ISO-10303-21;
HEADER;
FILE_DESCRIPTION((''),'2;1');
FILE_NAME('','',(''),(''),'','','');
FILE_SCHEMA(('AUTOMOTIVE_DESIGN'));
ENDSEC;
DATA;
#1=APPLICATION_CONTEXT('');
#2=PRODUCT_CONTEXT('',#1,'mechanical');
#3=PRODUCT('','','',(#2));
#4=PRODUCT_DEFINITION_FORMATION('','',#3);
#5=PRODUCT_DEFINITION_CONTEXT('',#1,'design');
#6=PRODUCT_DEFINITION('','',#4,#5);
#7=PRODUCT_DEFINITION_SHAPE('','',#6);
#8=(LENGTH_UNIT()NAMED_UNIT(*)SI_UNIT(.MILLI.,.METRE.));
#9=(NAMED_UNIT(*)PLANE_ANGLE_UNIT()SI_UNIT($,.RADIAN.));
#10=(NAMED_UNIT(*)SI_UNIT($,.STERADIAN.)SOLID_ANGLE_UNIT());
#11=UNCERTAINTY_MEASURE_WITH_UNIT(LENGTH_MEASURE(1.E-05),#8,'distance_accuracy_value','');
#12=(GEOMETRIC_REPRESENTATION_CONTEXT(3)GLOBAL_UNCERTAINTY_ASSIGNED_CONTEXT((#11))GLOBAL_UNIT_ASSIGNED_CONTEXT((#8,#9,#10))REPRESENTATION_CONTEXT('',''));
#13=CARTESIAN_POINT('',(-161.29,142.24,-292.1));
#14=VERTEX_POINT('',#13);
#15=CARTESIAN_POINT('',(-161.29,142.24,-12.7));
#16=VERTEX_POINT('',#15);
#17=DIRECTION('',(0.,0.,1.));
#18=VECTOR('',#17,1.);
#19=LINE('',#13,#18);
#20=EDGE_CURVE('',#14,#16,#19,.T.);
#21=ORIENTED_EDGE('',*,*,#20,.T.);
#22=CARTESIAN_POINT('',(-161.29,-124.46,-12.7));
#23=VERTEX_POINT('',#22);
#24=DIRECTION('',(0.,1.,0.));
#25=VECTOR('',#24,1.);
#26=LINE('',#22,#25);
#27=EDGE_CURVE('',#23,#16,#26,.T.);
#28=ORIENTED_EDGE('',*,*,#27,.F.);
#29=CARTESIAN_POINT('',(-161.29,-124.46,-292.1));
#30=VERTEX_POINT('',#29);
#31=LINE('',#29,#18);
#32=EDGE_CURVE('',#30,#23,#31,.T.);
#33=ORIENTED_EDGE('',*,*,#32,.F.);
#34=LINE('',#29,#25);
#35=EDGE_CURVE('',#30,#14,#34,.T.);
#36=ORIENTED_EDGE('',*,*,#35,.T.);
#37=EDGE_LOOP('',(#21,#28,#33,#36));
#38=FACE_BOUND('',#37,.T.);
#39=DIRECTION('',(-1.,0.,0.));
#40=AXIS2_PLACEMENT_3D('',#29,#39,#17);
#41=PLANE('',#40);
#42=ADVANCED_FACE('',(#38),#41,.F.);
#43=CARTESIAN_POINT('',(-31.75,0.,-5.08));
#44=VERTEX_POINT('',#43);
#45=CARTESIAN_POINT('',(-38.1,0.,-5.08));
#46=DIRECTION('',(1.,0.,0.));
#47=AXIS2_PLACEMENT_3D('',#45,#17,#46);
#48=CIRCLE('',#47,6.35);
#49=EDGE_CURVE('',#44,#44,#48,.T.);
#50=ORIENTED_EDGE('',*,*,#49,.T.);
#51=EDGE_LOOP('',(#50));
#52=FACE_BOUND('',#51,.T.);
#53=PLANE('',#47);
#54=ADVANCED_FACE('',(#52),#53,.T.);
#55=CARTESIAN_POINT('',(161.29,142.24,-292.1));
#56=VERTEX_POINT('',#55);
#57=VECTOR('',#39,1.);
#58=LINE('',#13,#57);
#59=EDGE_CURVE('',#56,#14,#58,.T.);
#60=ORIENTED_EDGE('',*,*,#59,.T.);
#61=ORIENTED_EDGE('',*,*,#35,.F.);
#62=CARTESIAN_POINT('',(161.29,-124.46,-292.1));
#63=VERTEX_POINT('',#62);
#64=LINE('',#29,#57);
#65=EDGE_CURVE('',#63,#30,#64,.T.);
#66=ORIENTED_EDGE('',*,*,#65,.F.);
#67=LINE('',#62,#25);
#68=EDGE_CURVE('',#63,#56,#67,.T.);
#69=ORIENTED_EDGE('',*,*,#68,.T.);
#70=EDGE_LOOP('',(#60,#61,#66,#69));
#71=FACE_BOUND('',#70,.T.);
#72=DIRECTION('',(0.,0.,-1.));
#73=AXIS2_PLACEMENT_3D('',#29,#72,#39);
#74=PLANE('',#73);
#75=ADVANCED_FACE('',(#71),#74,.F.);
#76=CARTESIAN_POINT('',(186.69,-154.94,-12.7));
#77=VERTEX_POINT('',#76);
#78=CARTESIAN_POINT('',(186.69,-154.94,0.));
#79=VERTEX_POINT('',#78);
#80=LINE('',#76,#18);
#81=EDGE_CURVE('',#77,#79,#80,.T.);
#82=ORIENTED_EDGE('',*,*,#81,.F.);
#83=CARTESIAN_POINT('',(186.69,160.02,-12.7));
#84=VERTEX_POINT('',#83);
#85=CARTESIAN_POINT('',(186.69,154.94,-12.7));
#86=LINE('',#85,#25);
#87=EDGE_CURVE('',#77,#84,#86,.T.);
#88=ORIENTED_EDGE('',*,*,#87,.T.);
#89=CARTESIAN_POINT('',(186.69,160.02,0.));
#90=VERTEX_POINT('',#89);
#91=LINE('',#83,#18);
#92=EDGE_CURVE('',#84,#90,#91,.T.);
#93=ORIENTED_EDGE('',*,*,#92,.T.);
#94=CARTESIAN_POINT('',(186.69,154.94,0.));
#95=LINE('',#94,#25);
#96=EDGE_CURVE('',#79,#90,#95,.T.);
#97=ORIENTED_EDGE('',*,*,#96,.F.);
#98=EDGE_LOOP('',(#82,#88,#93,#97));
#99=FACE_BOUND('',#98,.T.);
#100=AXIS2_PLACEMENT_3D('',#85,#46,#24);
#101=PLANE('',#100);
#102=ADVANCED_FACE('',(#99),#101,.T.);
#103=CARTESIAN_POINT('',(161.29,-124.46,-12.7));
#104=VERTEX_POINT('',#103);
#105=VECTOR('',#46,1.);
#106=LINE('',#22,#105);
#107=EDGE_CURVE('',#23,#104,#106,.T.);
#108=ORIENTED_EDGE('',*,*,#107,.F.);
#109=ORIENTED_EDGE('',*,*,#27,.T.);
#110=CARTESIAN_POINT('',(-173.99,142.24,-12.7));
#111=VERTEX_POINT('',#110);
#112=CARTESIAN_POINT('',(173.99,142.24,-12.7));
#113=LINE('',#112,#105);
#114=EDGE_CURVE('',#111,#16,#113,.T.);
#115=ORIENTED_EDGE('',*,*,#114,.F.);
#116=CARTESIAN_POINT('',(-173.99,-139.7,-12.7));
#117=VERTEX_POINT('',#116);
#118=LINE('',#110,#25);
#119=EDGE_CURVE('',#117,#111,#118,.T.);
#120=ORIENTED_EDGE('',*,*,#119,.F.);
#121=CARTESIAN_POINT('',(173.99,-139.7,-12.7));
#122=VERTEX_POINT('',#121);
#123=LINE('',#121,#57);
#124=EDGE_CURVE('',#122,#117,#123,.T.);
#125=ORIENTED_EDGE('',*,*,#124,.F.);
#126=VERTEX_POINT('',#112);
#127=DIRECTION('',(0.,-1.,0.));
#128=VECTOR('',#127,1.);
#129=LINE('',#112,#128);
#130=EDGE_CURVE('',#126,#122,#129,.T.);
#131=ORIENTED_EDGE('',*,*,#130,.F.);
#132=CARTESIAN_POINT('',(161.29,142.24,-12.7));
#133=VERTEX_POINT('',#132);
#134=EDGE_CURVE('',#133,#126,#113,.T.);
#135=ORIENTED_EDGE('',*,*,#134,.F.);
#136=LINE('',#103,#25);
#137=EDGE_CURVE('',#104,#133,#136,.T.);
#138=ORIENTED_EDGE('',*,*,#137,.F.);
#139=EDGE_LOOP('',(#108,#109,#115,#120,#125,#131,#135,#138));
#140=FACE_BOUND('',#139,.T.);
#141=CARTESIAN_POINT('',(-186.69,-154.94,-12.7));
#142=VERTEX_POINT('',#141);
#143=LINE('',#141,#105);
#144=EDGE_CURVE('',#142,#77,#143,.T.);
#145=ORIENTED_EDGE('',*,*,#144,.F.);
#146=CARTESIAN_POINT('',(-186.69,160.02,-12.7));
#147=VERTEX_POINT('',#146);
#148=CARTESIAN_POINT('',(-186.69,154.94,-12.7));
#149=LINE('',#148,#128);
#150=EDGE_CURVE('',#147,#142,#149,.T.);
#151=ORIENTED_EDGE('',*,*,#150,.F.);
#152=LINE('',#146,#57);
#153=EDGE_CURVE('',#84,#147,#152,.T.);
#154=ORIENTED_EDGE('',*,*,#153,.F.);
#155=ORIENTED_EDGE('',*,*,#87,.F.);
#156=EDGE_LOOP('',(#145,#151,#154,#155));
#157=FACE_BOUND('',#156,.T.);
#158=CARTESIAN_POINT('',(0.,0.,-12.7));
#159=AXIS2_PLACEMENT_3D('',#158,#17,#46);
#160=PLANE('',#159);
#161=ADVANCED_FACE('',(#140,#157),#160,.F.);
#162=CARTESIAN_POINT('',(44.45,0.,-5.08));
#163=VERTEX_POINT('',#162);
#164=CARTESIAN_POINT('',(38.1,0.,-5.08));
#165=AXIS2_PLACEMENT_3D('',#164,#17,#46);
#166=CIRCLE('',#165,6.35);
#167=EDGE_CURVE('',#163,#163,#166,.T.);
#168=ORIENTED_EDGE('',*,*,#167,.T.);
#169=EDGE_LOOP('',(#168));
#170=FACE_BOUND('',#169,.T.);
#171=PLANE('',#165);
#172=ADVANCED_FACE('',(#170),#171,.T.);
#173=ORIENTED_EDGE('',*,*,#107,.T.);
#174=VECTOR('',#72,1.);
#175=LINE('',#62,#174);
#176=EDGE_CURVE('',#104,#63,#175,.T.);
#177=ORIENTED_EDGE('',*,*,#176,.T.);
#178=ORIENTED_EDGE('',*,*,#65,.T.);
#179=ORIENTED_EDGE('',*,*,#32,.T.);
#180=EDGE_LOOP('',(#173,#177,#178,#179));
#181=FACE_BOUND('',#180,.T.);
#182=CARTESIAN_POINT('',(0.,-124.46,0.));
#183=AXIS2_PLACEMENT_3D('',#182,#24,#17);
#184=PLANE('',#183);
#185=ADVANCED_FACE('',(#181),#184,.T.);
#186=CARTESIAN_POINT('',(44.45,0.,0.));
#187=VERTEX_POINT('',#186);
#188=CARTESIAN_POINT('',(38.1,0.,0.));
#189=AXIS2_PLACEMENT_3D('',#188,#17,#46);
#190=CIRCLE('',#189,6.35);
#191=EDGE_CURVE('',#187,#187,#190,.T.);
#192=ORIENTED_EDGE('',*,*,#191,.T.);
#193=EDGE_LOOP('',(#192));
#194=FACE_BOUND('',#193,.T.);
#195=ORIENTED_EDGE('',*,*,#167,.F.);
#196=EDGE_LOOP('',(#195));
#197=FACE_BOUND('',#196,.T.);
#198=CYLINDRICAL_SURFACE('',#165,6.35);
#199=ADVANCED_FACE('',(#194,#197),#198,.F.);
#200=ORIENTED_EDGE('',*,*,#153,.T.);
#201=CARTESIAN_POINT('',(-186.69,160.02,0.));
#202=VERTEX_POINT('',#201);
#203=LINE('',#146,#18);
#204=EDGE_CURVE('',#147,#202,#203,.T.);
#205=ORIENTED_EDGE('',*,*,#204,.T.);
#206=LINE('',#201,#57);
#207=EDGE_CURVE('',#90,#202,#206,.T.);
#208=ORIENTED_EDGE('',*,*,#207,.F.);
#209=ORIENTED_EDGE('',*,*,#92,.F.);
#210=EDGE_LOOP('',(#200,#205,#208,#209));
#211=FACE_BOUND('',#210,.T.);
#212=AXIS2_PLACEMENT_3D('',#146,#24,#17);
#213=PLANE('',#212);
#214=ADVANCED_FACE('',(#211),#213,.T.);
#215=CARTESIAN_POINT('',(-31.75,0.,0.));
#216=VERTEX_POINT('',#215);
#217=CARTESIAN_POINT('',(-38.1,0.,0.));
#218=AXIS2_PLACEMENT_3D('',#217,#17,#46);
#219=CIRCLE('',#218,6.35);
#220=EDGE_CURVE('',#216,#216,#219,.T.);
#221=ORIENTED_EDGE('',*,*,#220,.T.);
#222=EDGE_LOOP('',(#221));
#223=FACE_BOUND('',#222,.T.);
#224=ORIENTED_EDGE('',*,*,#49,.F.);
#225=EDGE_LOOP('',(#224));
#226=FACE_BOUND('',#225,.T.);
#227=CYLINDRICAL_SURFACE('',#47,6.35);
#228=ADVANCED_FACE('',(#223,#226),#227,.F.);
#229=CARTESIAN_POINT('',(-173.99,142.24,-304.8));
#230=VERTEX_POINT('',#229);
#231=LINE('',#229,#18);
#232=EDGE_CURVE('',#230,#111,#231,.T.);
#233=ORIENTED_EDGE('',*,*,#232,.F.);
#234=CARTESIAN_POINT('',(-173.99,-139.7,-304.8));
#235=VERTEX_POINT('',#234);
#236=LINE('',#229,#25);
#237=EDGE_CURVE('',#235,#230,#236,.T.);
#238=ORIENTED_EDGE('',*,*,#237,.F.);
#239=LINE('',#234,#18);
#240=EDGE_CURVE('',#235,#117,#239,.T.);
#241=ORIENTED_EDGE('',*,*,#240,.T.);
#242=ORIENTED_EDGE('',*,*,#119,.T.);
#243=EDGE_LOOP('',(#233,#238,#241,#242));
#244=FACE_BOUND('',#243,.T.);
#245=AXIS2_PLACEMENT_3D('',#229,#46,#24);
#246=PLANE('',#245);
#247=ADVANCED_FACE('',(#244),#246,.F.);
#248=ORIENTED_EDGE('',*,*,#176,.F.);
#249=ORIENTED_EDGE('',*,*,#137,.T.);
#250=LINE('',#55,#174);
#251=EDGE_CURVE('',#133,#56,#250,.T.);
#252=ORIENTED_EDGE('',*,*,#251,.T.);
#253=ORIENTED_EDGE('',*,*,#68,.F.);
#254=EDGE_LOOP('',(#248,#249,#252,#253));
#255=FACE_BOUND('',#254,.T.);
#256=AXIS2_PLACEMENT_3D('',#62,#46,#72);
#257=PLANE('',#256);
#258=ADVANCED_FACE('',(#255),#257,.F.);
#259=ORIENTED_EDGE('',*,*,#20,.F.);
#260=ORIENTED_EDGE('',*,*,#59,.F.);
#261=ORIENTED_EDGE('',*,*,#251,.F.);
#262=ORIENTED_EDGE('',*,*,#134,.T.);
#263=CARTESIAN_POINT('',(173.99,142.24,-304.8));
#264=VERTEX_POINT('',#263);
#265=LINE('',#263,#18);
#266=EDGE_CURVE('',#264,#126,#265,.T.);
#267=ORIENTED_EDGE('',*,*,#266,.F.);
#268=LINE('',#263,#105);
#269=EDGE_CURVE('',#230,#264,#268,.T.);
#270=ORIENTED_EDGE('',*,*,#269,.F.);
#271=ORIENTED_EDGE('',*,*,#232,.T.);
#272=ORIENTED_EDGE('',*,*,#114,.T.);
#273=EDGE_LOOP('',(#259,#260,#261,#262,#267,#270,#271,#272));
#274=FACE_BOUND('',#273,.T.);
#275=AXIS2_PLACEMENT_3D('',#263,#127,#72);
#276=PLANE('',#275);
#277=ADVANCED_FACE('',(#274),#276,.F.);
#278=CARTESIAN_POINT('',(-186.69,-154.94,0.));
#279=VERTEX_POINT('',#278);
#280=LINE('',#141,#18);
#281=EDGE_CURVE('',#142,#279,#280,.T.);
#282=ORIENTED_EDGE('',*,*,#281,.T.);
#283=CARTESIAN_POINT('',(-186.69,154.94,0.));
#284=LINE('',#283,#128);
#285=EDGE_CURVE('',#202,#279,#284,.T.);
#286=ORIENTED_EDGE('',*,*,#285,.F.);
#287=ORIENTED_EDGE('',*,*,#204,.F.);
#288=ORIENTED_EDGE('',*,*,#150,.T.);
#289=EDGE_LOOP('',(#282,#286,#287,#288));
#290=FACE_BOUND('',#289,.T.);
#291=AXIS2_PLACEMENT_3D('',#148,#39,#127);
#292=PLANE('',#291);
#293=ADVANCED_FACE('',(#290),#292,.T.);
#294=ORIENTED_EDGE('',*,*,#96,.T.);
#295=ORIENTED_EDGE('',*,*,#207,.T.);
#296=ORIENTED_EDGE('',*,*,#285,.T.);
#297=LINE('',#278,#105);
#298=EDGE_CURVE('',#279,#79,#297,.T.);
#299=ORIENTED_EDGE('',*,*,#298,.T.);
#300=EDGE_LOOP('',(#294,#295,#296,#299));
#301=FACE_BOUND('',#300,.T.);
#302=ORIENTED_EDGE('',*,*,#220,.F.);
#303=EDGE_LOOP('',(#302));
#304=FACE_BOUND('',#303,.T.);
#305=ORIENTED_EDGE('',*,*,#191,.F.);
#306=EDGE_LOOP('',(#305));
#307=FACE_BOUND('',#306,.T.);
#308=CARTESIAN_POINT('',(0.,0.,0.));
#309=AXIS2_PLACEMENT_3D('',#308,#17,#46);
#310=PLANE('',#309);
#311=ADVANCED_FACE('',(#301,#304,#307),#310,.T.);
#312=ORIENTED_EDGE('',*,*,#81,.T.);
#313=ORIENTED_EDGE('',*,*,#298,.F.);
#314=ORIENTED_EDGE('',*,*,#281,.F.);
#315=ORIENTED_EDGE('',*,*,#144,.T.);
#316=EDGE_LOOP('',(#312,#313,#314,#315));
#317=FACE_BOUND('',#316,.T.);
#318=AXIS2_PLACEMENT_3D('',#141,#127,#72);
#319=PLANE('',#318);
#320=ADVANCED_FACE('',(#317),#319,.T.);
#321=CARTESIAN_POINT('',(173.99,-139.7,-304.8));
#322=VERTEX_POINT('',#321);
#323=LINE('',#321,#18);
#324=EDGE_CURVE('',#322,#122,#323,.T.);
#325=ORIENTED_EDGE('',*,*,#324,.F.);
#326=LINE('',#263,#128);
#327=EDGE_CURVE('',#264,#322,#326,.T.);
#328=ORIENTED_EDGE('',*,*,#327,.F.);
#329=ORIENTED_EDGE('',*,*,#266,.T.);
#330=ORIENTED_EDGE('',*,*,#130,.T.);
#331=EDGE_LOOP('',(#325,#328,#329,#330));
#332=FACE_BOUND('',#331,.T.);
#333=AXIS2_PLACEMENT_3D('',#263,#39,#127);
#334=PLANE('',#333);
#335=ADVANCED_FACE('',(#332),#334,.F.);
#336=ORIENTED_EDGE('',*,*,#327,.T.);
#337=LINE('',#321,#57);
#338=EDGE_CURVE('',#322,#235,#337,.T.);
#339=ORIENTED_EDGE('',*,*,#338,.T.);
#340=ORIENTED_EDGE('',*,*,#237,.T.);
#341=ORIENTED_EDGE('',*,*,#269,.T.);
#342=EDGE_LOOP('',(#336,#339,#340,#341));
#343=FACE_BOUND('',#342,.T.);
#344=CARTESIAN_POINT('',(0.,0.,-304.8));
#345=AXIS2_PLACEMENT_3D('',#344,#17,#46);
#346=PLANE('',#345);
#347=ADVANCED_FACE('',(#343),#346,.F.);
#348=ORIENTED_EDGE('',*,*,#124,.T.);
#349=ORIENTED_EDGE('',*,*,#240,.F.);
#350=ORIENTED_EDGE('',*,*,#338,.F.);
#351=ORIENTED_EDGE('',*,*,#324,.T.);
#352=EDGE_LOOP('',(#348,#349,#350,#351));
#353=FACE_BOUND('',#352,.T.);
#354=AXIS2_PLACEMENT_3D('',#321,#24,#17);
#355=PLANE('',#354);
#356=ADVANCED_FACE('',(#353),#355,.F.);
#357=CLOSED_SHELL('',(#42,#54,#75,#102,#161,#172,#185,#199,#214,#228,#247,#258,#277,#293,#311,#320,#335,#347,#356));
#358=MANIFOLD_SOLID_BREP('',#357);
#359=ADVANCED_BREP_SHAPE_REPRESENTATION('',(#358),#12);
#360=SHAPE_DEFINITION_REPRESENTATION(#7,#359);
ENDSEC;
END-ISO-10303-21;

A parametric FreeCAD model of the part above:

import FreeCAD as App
import Part
import Sketcher
from FreeCAD import Vector
Q = App.Units.Quantity

doc = App.newDocument("Part")
body = doc.addObject("PartDesign::Body", "Body")

# Sketch on XY plane
sketch1 = doc.addObject("Sketcher::SketchObject", "Sketch")
body.addObject(sketch1)
sketch1.AttachmentSupport = (doc.XY_Plane, [""])
sketch1.MapMode = "FlatFace"
sketch1.addGeometry([
    Part.LineSegment(Vector(-187, 155, 0), Vector(-187, -155, 0)),
    Part.LineSegment(Vector(-187, -155, 0), Vector(187, -155, 0)),
    Part.LineSegment(Vector(187, -155, 0), Vector(187, 155, 0)),
    Part.LineSegment(Vector(187, 155, 0), Vector(-187, 155, 0)),
], False)
sketch1.addConstraint([
    Sketcher.Constraint("Coincident", 0, 2, 1, 1),
    Sketcher.Constraint("Coincident", 1, 2, 2, 1),
    Sketcher.Constraint("Coincident", 2, 2, 3, 1),
    Sketcher.Constraint("Coincident", 3, 2, 0, 1),
    Sketcher.Constraint("Vertical", 0),
    Sketcher.Constraint("Horizontal", 1),
    Sketcher.Constraint("Vertical", 2),
    Sketcher.Constraint("Horizontal", 3),
    Sketcher.Constraint("Symmetric", 0, 2, 2, 2, -1, 1),
    Sketcher.Constraint("DistanceX", 1, 1, 1, 2, Q("14.7 in")),
    Sketcher.Constraint("DistanceY", 0, 2, 0, 1, Q("12.2 in")),
])
pad1 = doc.addObject("PartDesign::Pad", "Pad")
body.addObject(pad1)
pad1.Profile = sketch1
pad1.Length = Q("0.5 in")
pad1.Reversed = True

# Sketch on XY plane
sketch2 = doc.addObject("Sketcher::SketchObject", "Sketch001")
body.addObject(sketch2)
sketch2.AttachmentSupport = (doc.XY_Plane, [""])
sketch2.MapMode = "FlatFace"
sketch2.AttachmentOffset = App.Placement(Vector(0, 0, -0.5 * 25.4), App.Rotation())
sketch2.addGeometry([
    Part.LineSegment(Vector(174, 142, 0), Vector(174, -140, 0)),
    Part.LineSegment(Vector(174, -140, 0), Vector(-174, -140, 0)),
    Part.LineSegment(Vector(-174, -140, 0), Vector(-174, 142, 0)),
    Part.LineSegment(Vector(-174, 142, 0), Vector(174, 142, 0)),
], False)
sketch2.addConstraint([
    Sketcher.Constraint("Coincident", 0, 2, 1, 1),
    Sketcher.Constraint("Coincident", 1, 2, 2, 1),
    Sketcher.Constraint("Coincident", 2, 2, 3, 1),
    Sketcher.Constraint("Coincident", 3, 2, 0, 1),
    Sketcher.Constraint("Vertical", 0),
    Sketcher.Constraint("Horizontal", 1),
    Sketcher.Constraint("Vertical", 2),
    Sketcher.Constraint("Horizontal", 3),
    Sketcher.Constraint("DistanceX", 1, 2, 1, 1, Q("13.7 in")),
    Sketcher.Constraint("DistanceY", 0, 2, 0, 1, Q("11.1 in")),
    Sketcher.Constraint("DistanceY", 0, 2, -1, 1, Q("5.5 in")),
    Sketcher.Constraint("DistanceX", -1, 1, 0, 2, Q("6.85 in")),
])
pad2 = doc.addObject("PartDesign::Pad", "Pad001")
body.addObject(pad2)
pad2.Profile = sketch2
pad2.Length = Q("11.5 in")
pad2.Reversed = True

# Sketch on XZ plane
sketch3 = doc.addObject("Sketcher::SketchObject", "Sketch002")
body.addObject(sketch3)
sketch3.AttachmentSupport = (doc.XZ_Plane, [""])
sketch3.MapMode = "FlatFace"
sketch3.AttachmentOffset = App.Placement(Vector(0, 0, -5.6 * 25.4), App.Rotation())
sketch3.addGeometry([
    Part.LineSegment(Vector(-161, -292, 0), Vector(-161, -13, 0)),
    Part.LineSegment(Vector(-161, -13, 0), Vector(161, -13, 0)),
    Part.LineSegment(Vector(161, -13, 0), Vector(161, -292, 0)),
    Part.LineSegment(Vector(161, -292, 0), Vector(-161, -292, 0)),
], False)
sketch3.addConstraint([
    Sketcher.Constraint("Coincident", 0, 2, 1, 1),
    Sketcher.Constraint("Coincident", 1, 2, 2, 1),
    Sketcher.Constraint("Coincident", 2, 2, 3, 1),
    Sketcher.Constraint("Coincident", 3, 2, 0, 1),
    Sketcher.Constraint("Vertical", 0),
    Sketcher.Constraint("Horizontal", 1),
    Sketcher.Constraint("Vertical", 2),
    Sketcher.Constraint("Horizontal", 3),
    Sketcher.Constraint("DistanceY", 0, 1, 0, 2, Q("11 in")),
    Sketcher.Constraint("DistanceX", 1, 1, 1, 2, Q("12.7 in")),
    Sketcher.Constraint("DistanceY", 0, 2, -1, 1, Q("0.5 in")),
    Sketcher.Constraint("DistanceX", 0, 2, -1, 1, Q("6.35 in")),
])
pocket1 = doc.addObject("PartDesign::Pocket", "Pocket")
body.addObject(pocket1)
pocket1.Profile = sketch3
pocket1.Length = Q("10.5 in")
pocket1.Reversed = True

# Sketch on XY plane
sketch4 = doc.addObject("Sketcher::SketchObject", "Sketch003")
body.addObject(sketch4)
sketch4.AttachmentSupport = (doc.XY_Plane, [""])
sketch4.MapMode = "FlatFace"
sketch4.addGeometry([
    Part.Circle(Vector(-38, 0, 0), Vector(0, 0, 1), 6),
    Part.Circle(Vector(38, 0, 0), Vector(0, 0, 1), 6),
], False)
sketch4.addConstraint([
    Sketcher.Constraint("Equal", 0, 1),
    Sketcher.Constraint("Symmetric", 0, 3, 1, 3, -1, 1),
    Sketcher.Constraint("PointOnObject", 0, 3, -1),
    Sketcher.Constraint("Diameter", 0, Q("0.5 in")),
    Sketcher.Constraint("DistanceX", 0, 3, 1, 3, Q("3 in")),
])
pocket2 = doc.addObject("PartDesign::Pocket", "Pocket001")
body.addObject(pocket2)
pocket2.Profile = sketch4
pocket2.Length = Q("0.2 in")

# Sketch on XY plane
sketch5 = doc.addObject("Sketcher::SketchObject", "Sketch004")
body.addObject(sketch5)
sketch5.AttachmentSupport = (doc.XY_Plane, [""])
sketch5.MapMode = "FlatFace"
sketch5.addGeometry([
    Part.LineSegment(Vector(-187, 160, 0), Vector(-187, 155, 0)),
    Part.LineSegment(Vector(-187, 155, 0), Vector(187, 155, 0)),
    Part.LineSegment(Vector(187, 155, 0), Vector(187, 160, 0)),
    Part.LineSegment(Vector(187, 160, 0), Vector(-187, 160, 0)),
], False)
sketch5.addConstraint([
    Sketcher.Constraint("Coincident", 0, 2, 1, 1),
    Sketcher.Constraint("Coincident", 1, 2, 2, 1),
    Sketcher.Constraint("Coincident", 2, 2, 3, 1),
    Sketcher.Constraint("Coincident", 3, 2, 0, 1),
    Sketcher.Constraint("Vertical", 0),
    Sketcher.Constraint("Horizontal", 1),
    Sketcher.Constraint("Vertical", 2),
    Sketcher.Constraint("Horizontal", 3),
    Sketcher.Constraint("DistanceX", 1, 1, 1, 2, Q("14.7 in")),
    Sketcher.Constraint("DistanceY", 0, 2, 0, 1, Q("0.2 in")),
    Sketcher.Constraint("DistanceY", -1, 1, 0, 2, Q("6.1 in")),
    Sketcher.Constraint("DistanceX", 0, 2, -1, 1, Q("7.35 in")),
])
pad3 = doc.addObject("PartDesign::Pad", "Pad002")
body.addObject(pad3)
pad3.Profile = sketch5
pad3.Length = Q("0.5 in")
pad3.Reversed = True

doc.recompute()
